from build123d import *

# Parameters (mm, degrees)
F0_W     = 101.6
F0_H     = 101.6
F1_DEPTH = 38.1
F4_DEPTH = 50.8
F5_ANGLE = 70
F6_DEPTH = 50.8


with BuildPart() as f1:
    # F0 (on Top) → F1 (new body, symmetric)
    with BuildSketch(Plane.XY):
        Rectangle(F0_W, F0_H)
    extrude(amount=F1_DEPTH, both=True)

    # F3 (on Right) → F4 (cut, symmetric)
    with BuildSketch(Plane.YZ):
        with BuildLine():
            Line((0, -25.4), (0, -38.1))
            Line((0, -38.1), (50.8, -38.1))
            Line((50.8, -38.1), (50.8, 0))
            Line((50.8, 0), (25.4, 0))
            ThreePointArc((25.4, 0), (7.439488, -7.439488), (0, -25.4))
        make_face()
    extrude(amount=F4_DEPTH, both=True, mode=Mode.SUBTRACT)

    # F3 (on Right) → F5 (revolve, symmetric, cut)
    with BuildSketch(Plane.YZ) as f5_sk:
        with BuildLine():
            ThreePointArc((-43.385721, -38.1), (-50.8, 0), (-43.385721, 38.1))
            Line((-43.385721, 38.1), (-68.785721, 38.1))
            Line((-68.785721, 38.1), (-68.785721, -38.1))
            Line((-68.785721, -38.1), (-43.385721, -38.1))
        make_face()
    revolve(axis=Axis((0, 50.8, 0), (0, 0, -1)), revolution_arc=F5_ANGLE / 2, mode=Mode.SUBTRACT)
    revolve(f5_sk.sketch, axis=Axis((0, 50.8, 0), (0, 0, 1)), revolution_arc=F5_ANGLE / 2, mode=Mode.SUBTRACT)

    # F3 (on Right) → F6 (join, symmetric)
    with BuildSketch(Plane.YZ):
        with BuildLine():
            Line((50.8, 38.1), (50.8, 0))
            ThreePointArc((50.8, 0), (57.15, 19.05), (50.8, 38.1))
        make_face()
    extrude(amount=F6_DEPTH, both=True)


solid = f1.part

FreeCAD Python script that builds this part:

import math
import FreeCAD as App
import Part
import Sketcher
from FreeCAD import Vector
Q = App.Units.Quantity


def add_polygon(sketch, points):
    """Adds a closed chain of lines whose ends are joined by coincident constraints."""
    first, n = sketch.GeometryCount, len(points)
    for a, b in zip(points, points[1:] + points[:1]):
        sketch.addGeometry(Part.LineSegment(App.Vector(*a, 0), App.Vector(*b, 0)), False)
    for i in range(n):
        sketch.addConstraint(Sketcher.Constraint("Coincident", first + i, 2, first + (i + 1) % n, 1))

doc = App.newDocument("Part")
body = doc.addObject("PartDesign::Body", "Body")

# Sketch on XY plane
sketch1 = doc.addObject("Sketcher::SketchObject", "Sketch")
body.addObject(sketch1)
sketch1.AttachmentSupport = (doc.XY_Plane, [""])
sketch1.MapMode = "FlatFace"
add_polygon(sketch1, [(-51, 51), (-51, -51), (51, -51), (51, 51)])  # lines 0-3
sketch1.addConstraint(Sketcher.Constraint("Vertical", 0))
sketch1.addConstraint(Sketcher.Constraint("Horizontal", 1))
sketch1.addConstraint(Sketcher.Constraint("Vertical", 2))
sketch1.addConstraint(Sketcher.Constraint("Horizontal", 3))
sketch1.addConstraint(Sketcher.Constraint("Symmetric", 0, 2, 2, 2, -1, 1))
sketch1.addConstraint(Sketcher.Constraint("Equal", 3, 0))
sketch1.addConstraint(Sketcher.Constraint("DistanceX", 1, 1, 1, 2, Q("4 in")))
pad1 = doc.addObject("PartDesign::Pad", "Pad")
body.addObject(pad1)
pad1.Profile = sketch1
pad1.Length = Q("3 in")
pad1.Midplane = True

# Sketch on YZ plane
sketch2 = doc.addObject("Sketcher::SketchObject", "Sketch001")
body.addObject(sketch2)
sketch2.AttachmentSupport = (doc.YZ_Plane, [""])
sketch2.MapMode = "FlatFace"
sketch2.addGeometry(Part.LineSegment(Vector(0, -25, 0), Vector(0, -38, 0)), False)
sketch2.addGeometry(Part.LineSegment(Vector(0, -38, 0), Vector(51, -38, 0)), False)
sketch2.addGeometry(Part.LineSegment(Vector(51, -38, 0), Vector(51, 0, 0)), False)
sketch2.addGeometry(Part.LineSegment(Vector(51, 0, 0), Vector(25, 0, 0)), False)
sketch2.addGeometry(Part.ArcOfCircle(Part.Circle(Vector(25, -25, 0), Vector(0, 0, 1), 25), math.radians(90), math.radians(180)), False)
sketch2.addConstraint(Sketcher.Constraint("Coincident", 0, 2, 1, 1))
sketch2.addConstraint(Sketcher.Constraint("Coincident", 1, 2, 2, 1))
sketch2.addConstraint(Sketcher.Constraint("Coincident", 2, 2, 3, 1))
sketch2.addConstraint(Sketcher.Constraint("Tangent", 3, 2, 4, 1))
sketch2.addConstraint(Sketcher.Constraint("Tangent", 4, 2, 0, 1))
sketch2.addConstraint(Sketcher.Constraint("Vertical", 0))
sketch2.addConstraint(Sketcher.Constraint("Horizontal", 1))
sketch2.addConstraint(Sketcher.Constraint("Vertical", 2))
sketch2.addConstraint(Sketcher.Constraint("Horizontal", 3))
sketch2.addConstraint(Sketcher.Constraint("PointOnObject", 0, 2, -2))
sketch2.addConstraint(Sketcher.Constraint("PointOnObject", 2, 2, -1))
sketch2.addConstraint(Sketcher.Constraint("Radius", 4, Q("1 in")))
sketch2.addConstraint(Sketcher.Constraint("DistanceX", 1, 1, 1, 2, Q("2 in")))
sketch2.addConstraint(Sketcher.Constraint("DistanceY", 0, 2, 0, 1, Q("0.5 in")))
pocket1 = doc.addObject("PartDesign::Pocket", "Pocket")
body.addObject(pocket1)
pocket1.Profile = sketch2
pocket1.Length = Q("4 in")
pocket1.Midplane = True

# Sketch on YZ plane
sketch3 = doc.addObject("Sketcher::SketchObject", "Sketch002")
body.addObject(sketch3)
sketch3.AttachmentSupport = (doc.YZ_Plane, [""])
sketch3.MapMode = "FlatFace"
sketch3.addGeometry(Part.ArcOfCircle(Part.Circle(Vector(51, 0, 0), Vector(0, 0, 1), 102), math.radians(158), math.radians(202)), False)
sketch3.addGeometry(Part.LineSegment(Vector(-43, 38, 0), Vector(-69, 38, 0)), False)
sketch3.addGeometry(Part.LineSegment(Vector(-69, 38, 0), Vector(-69, -38, 0)), False)
sketch3.addGeometry(Part.LineSegment(Vector(-69, -38, 0), Vector(-43, -38, 0)), False)
sketch3.addGeometry(Part.LineSegment(Vector(51, 38, 0), Vector(51, -38, 0)), True)  # axis
sketch3.addConstraint(Sketcher.Constraint("Coincident", 0, 1, 1, 1))
sketch3.addConstraint(Sketcher.Constraint("Coincident", 1, 2, 2, 1))
sketch3.addConstraint(Sketcher.Constraint("Coincident", 2, 2, 3, 1))
sketch3.addConstraint(Sketcher.Constraint("Coincident", 3, 2, 0, 2))
sketch3.addConstraint(Sketcher.Constraint("Horizontal", 1))
sketch3.addConstraint(Sketcher.Constraint("Vertical", 2))
sketch3.addConstraint(Sketcher.Constraint("Horizontal", 3))
sketch3.addConstraint(Sketcher.Constraint("Vertical", 4))
sketch3.addConstraint(Sketcher.Constraint("Symmetric", 0, 1, 3, 2, -1))
sketch3.addConstraint(Sketcher.Constraint("Horizontal", 1, 2, 4, 1))
sketch3.addConstraint(Sketcher.Constraint("Horizontal", 3, 2, 4, 2))
sketch3.addConstraint(Sketcher.Constraint("Radius", 0, Q("4.0000001 in")))
sketch3.addConstraint(Sketcher.Constraint("DistanceX", 1, 2, 1, 1, Q("1 in")))
sketch3.addConstraint(Sketcher.Constraint("DistanceY", 2, 2, 2, 1, Q("3 in")))
sketch3.addConstraint(Sketcher.Constraint("DistanceX", -1, 1, 0, 3, Q("2.0000001 in")))
sketch3.addConstraint(Sketcher.Constraint("DistanceX", -1, 1, 4, 1, Q("2 in")))
groove = doc.addObject("PartDesign::Groove", "Groove")
body.addObject(groove)
groove.Profile = sketch3
groove.ReferenceAxis = (sketch3, ["Axis0"])
groove.Angle = 35

# Sketch on YZ plane
sketch4 = doc.addObject("Sketcher::SketchObject", "Sketch003")
body.addObject(sketch4)
sketch4.AttachmentSupport = (doc.YZ_Plane, [""])
sketch4.MapMode = "FlatFace"
sketch4.addGeometry(Part.ArcOfCircle(Part.Circle(Vector(51, 0, 0), Vector(0, 0, 1), 102), math.radians(158), math.radians(202)), False)
sketch4.addGeometry(Part.LineSegment(Vector(-43, 38, 0), Vector(-69, 38, 0)), False)
sketch4.addGeometry(Part.LineSegment(Vector(-69, 38, 0), Vector(-69, -38, 0)), False)
sketch4.addGeometry(Part.LineSegment(Vector(-69, -38, 0), Vector(-43, -38, 0)), False)
sketch4.addGeometry(Part.LineSegment(Vector(51, -38, 0), Vector(51, 38, 0)), True)  # axis
sketch4.addConstraint(Sketcher.Constraint("Coincident", 0, 1, 1, 1))
sketch4.addConstraint(Sketcher.Constraint("Coincident", 1, 2, 2, 1))
sketch4.addConstraint(Sketcher.Constraint("Coincident", 2, 2, 3, 1))
sketch4.addConstraint(Sketcher.Constraint("Coincident", 3, 2, 0, 2))
sketch4.addConstraint(Sketcher.Constraint("Horizontal", 1))
sketch4.addConstraint(Sketcher.Constraint("Vertical", 2))
sketch4.addConstraint(Sketcher.Constraint("Horizontal", 3))
sketch4.addConstraint(Sketcher.Constraint("Vertical", 4))
sketch4.addConstraint(Sketcher.Constraint("Symmetric", 0, 1, 3, 2, -1))
sketch4.addConstraint(Sketcher.Constraint("Horizontal", 3, 2, 4, 1))
sketch4.addConstraint(Sketcher.Constraint("Horizontal", 1, 2, 4, 2))
sketch4.addConstraint(Sketcher.Constraint("Radius", 0, Q("4.0000001 in")))
sketch4.addConstraint(Sketcher.Constraint("DistanceX", 1, 2, 1, 1, Q("1 in")))
sketch4.addConstraint(Sketcher.Constraint("DistanceY", 2, 2, 2, 1, Q("3 in")))
sketch4.addConstraint(Sketcher.Constraint("DistanceX", -1, 1, 0, 3, Q("2.0000001 in")))
sketch4.addConstraint(Sketcher.Constraint("DistanceX", -1, 1, 4, 1, Q("2 in")))
groove2 = doc.addObject("PartDesign::Groove", "Groove001")
body.addObject(groove2)
groove2.Profile = sketch4
groove2.ReferenceAxis = (sketch4, ["Axis0"])
groove2.Angle = 35

# Sketch on YZ plane
sketch5 = doc.addObject("Sketcher::SketchObject", "Sketch004")
body.addObject(sketch5)
sketch5.AttachmentSupport = (doc.YZ_Plane, [""])
sketch5.MapMode = "FlatFace"
sketch5.addGeometry(Part.LineSegment(Vector(51, 38, 0), Vector(51, 0, 0)), False)
sketch5.addGeometry(Part.ArcOfCircle(Part.Circle(Vector(25, 19, 0), Vector(0, 0, 1), 32), math.radians(-37), math.radians(37)), False)
sketch5.addConstraint(Sketcher.Constraint("Coincident", 0, 1, 1, 2))
sketch5.addConstraint(Sketcher.Constraint("Coincident", 1, 1, 0, 2))
sketch5.addConstraint(Sketcher.Constraint("Vertical", 0))
sketch5.addConstraint(Sketcher.Constraint("PointOnObject", 1, 1, -1))
sketch5.addConstraint(Sketcher.Constraint("Radius", 1, Q("1.25 in")))
sketch5.addConstraint(Sketcher.Constraint("DistanceY", 0, 2, 0, 1, Q("1.5 in")))
sketch5.addConstraint(Sketcher.Constraint("DistanceX", -1, 1, 1, 3, Q("1 in")))
pad2 = doc.addObject("PartDesign::Pad", "Pad001")
body.addObject(pad2)
pad2.Profile = sketch5
pad2.Length = Q("4 in")
pad2.Midplane = True

doc.recompute()
